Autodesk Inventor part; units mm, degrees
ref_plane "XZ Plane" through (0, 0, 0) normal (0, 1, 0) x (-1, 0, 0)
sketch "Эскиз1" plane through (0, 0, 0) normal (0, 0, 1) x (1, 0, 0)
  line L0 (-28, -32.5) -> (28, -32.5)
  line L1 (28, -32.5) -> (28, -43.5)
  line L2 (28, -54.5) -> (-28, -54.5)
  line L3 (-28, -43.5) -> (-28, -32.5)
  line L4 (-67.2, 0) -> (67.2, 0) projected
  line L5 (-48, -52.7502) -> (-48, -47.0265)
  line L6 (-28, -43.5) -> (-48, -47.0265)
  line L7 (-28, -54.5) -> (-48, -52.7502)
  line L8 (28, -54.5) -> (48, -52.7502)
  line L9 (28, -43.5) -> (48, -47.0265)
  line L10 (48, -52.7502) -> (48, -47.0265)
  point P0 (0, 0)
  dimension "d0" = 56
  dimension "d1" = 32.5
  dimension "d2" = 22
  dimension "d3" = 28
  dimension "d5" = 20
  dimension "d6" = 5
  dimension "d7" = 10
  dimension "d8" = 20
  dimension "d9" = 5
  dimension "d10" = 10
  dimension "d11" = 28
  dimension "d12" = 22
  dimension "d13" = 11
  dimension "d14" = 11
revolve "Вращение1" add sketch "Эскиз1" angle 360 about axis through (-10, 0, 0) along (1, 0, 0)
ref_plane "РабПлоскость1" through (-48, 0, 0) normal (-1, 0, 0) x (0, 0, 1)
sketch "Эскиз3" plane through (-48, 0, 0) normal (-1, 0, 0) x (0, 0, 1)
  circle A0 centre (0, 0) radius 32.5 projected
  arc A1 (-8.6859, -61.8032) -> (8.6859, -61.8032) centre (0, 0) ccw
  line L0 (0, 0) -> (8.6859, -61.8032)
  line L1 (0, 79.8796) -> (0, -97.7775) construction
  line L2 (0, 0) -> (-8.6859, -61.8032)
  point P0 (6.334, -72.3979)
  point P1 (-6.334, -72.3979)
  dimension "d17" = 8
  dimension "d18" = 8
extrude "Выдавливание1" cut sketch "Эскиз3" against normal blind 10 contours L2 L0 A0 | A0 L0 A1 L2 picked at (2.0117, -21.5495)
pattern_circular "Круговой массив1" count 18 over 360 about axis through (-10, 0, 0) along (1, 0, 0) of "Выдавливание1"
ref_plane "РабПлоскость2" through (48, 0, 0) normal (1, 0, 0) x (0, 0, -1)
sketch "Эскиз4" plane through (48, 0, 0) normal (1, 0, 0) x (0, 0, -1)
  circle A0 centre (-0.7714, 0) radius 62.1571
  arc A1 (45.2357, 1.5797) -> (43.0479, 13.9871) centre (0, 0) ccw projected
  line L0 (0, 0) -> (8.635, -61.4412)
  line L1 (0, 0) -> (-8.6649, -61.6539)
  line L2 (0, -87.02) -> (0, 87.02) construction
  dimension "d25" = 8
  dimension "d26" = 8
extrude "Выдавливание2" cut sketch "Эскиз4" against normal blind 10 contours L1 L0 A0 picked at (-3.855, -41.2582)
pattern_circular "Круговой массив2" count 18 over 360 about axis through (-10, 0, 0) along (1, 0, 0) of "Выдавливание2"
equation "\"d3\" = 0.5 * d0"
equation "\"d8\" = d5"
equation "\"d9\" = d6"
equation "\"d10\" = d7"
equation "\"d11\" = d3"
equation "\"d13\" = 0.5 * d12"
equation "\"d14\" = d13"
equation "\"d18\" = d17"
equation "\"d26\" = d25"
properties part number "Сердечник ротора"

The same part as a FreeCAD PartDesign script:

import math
import FreeCAD as App
import Part
import Sketcher
from FreeCAD import Vector
Q = App.Units.Quantity

doc = App.newDocument("Part")
body = doc.addObject("PartDesign::Body", "Body")

# Sketch on XY plane
sketch1 = doc.addObject("Sketcher::SketchObject", "Sketch")
body.addObject(sketch1)
sketch1.AttachmentSupport = (doc.XY_Plane, [""])
sketch1.MapMode = "FlatFace"
sketch1.addGeometry(Part.LineSegment(Vector(28, -32.5, 0), Vector(-28, -32.5, 0)), False)
sketch1.addGeometry(Part.LineSegment(Vector(-28, -32.5, 0), Vector(-28, -43.5, 0)), False)
sketch1.addGeometry(Part.LineSegment(Vector(-28, -43.5, 0), Vector(-48, -47.0265, 0)), False)
sketch1.addGeometry(Part.LineSegment(Vector(-48, -47.0265, 0), Vector(-48, -52.7502, 0)), False)
sketch1.addGeometry(Part.LineSegment(Vector(-48, -52.7502, 0), Vector(-28, -54.5, 0)), False)
sketch1.addGeometry(Part.LineSegment(Vector(-28, -54.5, 0), Vector(28, -54.5, 0)), False)
sketch1.addGeometry(Part.LineSegment(Vector(28, -54.5, 0), Vector(48, -52.7502, 0)), False)
sketch1.addGeometry(Part.LineSegment(Vector(48, -52.7502, 0), Vector(48, -47.0265, 0)), False)
sketch1.addGeometry(Part.LineSegment(Vector(48, -47.0265, 0), Vector(28, -43.5, 0)), False)
sketch1.addGeometry(Part.LineSegment(Vector(28, -43.5, 0), Vector(28, -32.5, 0)), False)
sketch1.addConstraint(Sketcher.Constraint("Coincident", 0, 2, 1, 1))
sketch1.addConstraint(Sketcher.Constraint("Coincident", 1, 2, 2, 1))
sketch1.addConstraint(Sketcher.Constraint("Coincident", 2, 2, 3, 1))
sketch1.addConstraint(Sketcher.Constraint("Coincident", 3, 2, 4, 1))
sketch1.addConstraint(Sketcher.Constraint("Coincident", 4, 2, 5, 1))
sketch1.addConstraint(Sketcher.Constraint("Coincident", 5, 2, 6, 1))
sketch1.addConstraint(Sketcher.Constraint("Coincident", 6, 2, 7, 1))
sketch1.addConstraint(Sketcher.Constraint("Coincident", 7, 2, 8, 1))
sketch1.addConstraint(Sketcher.Constraint("Coincident", 8, 2, 9, 1))
sketch1.addConstraint(Sketcher.Constraint("Coincident", 9, 2, 0, 1))
sketch1.addConstraint(Sketcher.Constraint("Horizontal", 0))
sketch1.addConstraint(Sketcher.Constraint("Vertical", 1))
sketch1.addConstraint(Sketcher.Constraint("Vertical", 3))
sketch1.addConstraint(Sketcher.Constraint("Horizontal", 5))
sketch1.addConstraint(Sketcher.Constraint("Vertical", 7))
sketch1.addConstraint(Sketcher.Constraint("Vertical", 9))
sketch1.addConstraint(Sketcher.Constraint("Symmetric", 3, 2, 6, 2, -2))
sketch1.addConstraint(Sketcher.Constraint("Symmetric", 1, 2, 8, 2, -2))
sketch1.addConstraint(Sketcher.Constraint("Horizontal", 2, 2, 7, 2))
sketch1.addConstraint(Sketcher.Constraint("Vertical", 1, 2, 4, 2))
sketch1.addConstraint(Sketcher.Constraint("Vertical", 5, 2, 8, 2))
sketch1.addConstraint(Sketcher.Constraint("DistanceX", 0, 2, 0, 1, 56.0))
sketch1.addConstraint(Sketcher.Constraint("DistanceY", 1, 2, 1, 1, 11.0))
sketch1.addConstraint(Sketcher.Constraint("Angle", 4, Q("-5 deg")))
sketch1.addConstraint(Sketcher.Constraint("DistanceX", 2, 2, 1, 2, 20.0))
sketch1.addConstraint(Sketcher.Constraint("DistanceY", 4, 2, 1, 2, 11.0))
sketch1.addConstraint(Sketcher.Constraint("DistanceY", 0, 2, -1, 1, 32.5))
sketch1.addConstraint(Sketcher.Constraint("Angle", 2, Q("-170 deg")))
revolution = doc.addObject("PartDesign::Revolution", "Revolution")
body.addObject(revolution)
revolution.Profile = sketch1
revolution.ReferenceAxis = (sketch1, ["H_Axis"])
revolution.Angle = 360

# Sketch on YZ plane
sketch2 = doc.addObject("Sketcher::SketchObject", "Sketch001")
body.addObject(sketch2)
sketch2.AttachmentSupport = (doc.YZ_Plane, [""])
sketch2.MapMode = "FlatFace"
sketch2.AttachmentOffset = App.Placement(Vector(0, 0, -48), App.Rotation())
sketch2.addGeometry(Part.LineSegment(Vector(0, 0, 0), Vector(-61.8032, -8.6859, 0)), False)
sketch2.addGeometry(Part.ArcOfCircle(Part.Circle(Vector(0, 0, 0), Vector(0, 0, 1), 62.410579), math.radians(171.999976), math.radians(188.000024)), False)
sketch2.addGeometry(Part.LineSegment(Vector(-61.8032, 8.6859, 0), Vector(0, 0, 0)), False)
sketch2.addConstraint(Sketcher.Constraint("Coincident", 0, 2, 1, 2))
sketch2.addConstraint(Sketcher.Constraint("Coincident", 1, 1, 2, 1))
sketch2.addConstraint(Sketcher.Constraint("Coincident", 2, 2, 0, 1))
sketch2.addConstraint(Sketcher.Constraint("Coincident", 1, 3, -1, 1))
sketch2.addConstraint(Sketcher.Constraint("Coincident", 2, 2, -1, 1))
sketch2.addConstraint(Sketcher.Constraint("Vertical", 0, 2, 1, 1))
sketch2.addConstraint(Sketcher.Constraint("Angle", 2, Q("-8 deg")))
sketch2.addConstraint(Sketcher.Constraint("Radius", 1, 62.4106))
pocket1 = doc.addObject("PartDesign::Pocket", "Pocket")
body.addObject(pocket1)
pocket1.Profile = sketch2
pocket1.Length = 10
pocket1.Reversed = True
doc.recompute()

polarpattern = doc.addObject("PartDesign::PolarPattern", "PolarPattern")
body.addObject(polarpattern)
polarpattern.Originals = [pocket1]
polarpattern.Axis = (doc.X_Axis, [""])
polarpattern.Angle = 360
polarpattern.Occurrences = 18
body.Tip = polarpattern

# Sketch on YZ plane
sketch3 = doc.addObject("Sketcher::SketchObject", "Sketch002")
body.addObject(sketch3)
sketch3.AttachmentSupport = (doc.YZ_Plane, [""])
sketch3.MapMode = "FlatFace"
sketch3.AttachmentOffset = App.Placement(Vector(0, 0, 48), App.Rotation())
sketch3.addGeometry(Part.LineSegment(Vector(0, 0, 0), Vector(-61.6539, 8.6649, 0)), False)
sketch3.addGeometry(Part.ArcOfCircle(Part.Circle(Vector(0, 0.7714, 0), Vector(0, 0, 1), 62.1571), math.radians(172.704157), math.radians(188.704169)), False)
sketch3.addGeometry(Part.LineSegment(Vector(-61.4412, -8.635, 0), Vector(0, 0, 0)), False)
sketch3.addConstraint(Sketcher.Constraint("Coincident", 0, 2, 1, 1))
sketch3.addConstraint(Sketcher.Constraint("Coincident", 1, 2, 2, 1))
sketch3.addConstraint(Sketcher.Constraint("Coincident", 2, 2, 0, 1))
sketch3.addConstraint(Sketcher.Constraint("Coincident", 2, 2, -1, 1))
sketch3.addConstraint(Sketcher.Constraint("PointOnObject", 1, 3, -2))
sketch3.addConstraint(Sketcher.Constraint("Angle", 2, Q("8 deg")))
sketch3.addConstraint(Sketcher.Constraint("Angle", 0, Q("172 deg")))
sketch3.addConstraint(Sketcher.Constraint("Radius", 1, 62.157))
sketch3.addConstraint(Sketcher.Constraint("Distance", 2, 62.045))
pocket2 = doc.addObject("PartDesign::Pocket", "Pocket001")
body.addObject(pocket2)
pocket2.Profile = sketch3
pocket2.Length = 10
doc.recompute()

polarpattern2 = doc.addObject("PartDesign::PolarPattern", "PolarPattern001")
body.addObject(polarpattern2)
polarpattern2.Originals = [pocket2]
polarpattern2.Axis = (doc.X_Axis, [""])
polarpattern2.Angle = 360
polarpattern2.Occurrences = 18
body.Tip = polarpattern2

doc.recompute()
